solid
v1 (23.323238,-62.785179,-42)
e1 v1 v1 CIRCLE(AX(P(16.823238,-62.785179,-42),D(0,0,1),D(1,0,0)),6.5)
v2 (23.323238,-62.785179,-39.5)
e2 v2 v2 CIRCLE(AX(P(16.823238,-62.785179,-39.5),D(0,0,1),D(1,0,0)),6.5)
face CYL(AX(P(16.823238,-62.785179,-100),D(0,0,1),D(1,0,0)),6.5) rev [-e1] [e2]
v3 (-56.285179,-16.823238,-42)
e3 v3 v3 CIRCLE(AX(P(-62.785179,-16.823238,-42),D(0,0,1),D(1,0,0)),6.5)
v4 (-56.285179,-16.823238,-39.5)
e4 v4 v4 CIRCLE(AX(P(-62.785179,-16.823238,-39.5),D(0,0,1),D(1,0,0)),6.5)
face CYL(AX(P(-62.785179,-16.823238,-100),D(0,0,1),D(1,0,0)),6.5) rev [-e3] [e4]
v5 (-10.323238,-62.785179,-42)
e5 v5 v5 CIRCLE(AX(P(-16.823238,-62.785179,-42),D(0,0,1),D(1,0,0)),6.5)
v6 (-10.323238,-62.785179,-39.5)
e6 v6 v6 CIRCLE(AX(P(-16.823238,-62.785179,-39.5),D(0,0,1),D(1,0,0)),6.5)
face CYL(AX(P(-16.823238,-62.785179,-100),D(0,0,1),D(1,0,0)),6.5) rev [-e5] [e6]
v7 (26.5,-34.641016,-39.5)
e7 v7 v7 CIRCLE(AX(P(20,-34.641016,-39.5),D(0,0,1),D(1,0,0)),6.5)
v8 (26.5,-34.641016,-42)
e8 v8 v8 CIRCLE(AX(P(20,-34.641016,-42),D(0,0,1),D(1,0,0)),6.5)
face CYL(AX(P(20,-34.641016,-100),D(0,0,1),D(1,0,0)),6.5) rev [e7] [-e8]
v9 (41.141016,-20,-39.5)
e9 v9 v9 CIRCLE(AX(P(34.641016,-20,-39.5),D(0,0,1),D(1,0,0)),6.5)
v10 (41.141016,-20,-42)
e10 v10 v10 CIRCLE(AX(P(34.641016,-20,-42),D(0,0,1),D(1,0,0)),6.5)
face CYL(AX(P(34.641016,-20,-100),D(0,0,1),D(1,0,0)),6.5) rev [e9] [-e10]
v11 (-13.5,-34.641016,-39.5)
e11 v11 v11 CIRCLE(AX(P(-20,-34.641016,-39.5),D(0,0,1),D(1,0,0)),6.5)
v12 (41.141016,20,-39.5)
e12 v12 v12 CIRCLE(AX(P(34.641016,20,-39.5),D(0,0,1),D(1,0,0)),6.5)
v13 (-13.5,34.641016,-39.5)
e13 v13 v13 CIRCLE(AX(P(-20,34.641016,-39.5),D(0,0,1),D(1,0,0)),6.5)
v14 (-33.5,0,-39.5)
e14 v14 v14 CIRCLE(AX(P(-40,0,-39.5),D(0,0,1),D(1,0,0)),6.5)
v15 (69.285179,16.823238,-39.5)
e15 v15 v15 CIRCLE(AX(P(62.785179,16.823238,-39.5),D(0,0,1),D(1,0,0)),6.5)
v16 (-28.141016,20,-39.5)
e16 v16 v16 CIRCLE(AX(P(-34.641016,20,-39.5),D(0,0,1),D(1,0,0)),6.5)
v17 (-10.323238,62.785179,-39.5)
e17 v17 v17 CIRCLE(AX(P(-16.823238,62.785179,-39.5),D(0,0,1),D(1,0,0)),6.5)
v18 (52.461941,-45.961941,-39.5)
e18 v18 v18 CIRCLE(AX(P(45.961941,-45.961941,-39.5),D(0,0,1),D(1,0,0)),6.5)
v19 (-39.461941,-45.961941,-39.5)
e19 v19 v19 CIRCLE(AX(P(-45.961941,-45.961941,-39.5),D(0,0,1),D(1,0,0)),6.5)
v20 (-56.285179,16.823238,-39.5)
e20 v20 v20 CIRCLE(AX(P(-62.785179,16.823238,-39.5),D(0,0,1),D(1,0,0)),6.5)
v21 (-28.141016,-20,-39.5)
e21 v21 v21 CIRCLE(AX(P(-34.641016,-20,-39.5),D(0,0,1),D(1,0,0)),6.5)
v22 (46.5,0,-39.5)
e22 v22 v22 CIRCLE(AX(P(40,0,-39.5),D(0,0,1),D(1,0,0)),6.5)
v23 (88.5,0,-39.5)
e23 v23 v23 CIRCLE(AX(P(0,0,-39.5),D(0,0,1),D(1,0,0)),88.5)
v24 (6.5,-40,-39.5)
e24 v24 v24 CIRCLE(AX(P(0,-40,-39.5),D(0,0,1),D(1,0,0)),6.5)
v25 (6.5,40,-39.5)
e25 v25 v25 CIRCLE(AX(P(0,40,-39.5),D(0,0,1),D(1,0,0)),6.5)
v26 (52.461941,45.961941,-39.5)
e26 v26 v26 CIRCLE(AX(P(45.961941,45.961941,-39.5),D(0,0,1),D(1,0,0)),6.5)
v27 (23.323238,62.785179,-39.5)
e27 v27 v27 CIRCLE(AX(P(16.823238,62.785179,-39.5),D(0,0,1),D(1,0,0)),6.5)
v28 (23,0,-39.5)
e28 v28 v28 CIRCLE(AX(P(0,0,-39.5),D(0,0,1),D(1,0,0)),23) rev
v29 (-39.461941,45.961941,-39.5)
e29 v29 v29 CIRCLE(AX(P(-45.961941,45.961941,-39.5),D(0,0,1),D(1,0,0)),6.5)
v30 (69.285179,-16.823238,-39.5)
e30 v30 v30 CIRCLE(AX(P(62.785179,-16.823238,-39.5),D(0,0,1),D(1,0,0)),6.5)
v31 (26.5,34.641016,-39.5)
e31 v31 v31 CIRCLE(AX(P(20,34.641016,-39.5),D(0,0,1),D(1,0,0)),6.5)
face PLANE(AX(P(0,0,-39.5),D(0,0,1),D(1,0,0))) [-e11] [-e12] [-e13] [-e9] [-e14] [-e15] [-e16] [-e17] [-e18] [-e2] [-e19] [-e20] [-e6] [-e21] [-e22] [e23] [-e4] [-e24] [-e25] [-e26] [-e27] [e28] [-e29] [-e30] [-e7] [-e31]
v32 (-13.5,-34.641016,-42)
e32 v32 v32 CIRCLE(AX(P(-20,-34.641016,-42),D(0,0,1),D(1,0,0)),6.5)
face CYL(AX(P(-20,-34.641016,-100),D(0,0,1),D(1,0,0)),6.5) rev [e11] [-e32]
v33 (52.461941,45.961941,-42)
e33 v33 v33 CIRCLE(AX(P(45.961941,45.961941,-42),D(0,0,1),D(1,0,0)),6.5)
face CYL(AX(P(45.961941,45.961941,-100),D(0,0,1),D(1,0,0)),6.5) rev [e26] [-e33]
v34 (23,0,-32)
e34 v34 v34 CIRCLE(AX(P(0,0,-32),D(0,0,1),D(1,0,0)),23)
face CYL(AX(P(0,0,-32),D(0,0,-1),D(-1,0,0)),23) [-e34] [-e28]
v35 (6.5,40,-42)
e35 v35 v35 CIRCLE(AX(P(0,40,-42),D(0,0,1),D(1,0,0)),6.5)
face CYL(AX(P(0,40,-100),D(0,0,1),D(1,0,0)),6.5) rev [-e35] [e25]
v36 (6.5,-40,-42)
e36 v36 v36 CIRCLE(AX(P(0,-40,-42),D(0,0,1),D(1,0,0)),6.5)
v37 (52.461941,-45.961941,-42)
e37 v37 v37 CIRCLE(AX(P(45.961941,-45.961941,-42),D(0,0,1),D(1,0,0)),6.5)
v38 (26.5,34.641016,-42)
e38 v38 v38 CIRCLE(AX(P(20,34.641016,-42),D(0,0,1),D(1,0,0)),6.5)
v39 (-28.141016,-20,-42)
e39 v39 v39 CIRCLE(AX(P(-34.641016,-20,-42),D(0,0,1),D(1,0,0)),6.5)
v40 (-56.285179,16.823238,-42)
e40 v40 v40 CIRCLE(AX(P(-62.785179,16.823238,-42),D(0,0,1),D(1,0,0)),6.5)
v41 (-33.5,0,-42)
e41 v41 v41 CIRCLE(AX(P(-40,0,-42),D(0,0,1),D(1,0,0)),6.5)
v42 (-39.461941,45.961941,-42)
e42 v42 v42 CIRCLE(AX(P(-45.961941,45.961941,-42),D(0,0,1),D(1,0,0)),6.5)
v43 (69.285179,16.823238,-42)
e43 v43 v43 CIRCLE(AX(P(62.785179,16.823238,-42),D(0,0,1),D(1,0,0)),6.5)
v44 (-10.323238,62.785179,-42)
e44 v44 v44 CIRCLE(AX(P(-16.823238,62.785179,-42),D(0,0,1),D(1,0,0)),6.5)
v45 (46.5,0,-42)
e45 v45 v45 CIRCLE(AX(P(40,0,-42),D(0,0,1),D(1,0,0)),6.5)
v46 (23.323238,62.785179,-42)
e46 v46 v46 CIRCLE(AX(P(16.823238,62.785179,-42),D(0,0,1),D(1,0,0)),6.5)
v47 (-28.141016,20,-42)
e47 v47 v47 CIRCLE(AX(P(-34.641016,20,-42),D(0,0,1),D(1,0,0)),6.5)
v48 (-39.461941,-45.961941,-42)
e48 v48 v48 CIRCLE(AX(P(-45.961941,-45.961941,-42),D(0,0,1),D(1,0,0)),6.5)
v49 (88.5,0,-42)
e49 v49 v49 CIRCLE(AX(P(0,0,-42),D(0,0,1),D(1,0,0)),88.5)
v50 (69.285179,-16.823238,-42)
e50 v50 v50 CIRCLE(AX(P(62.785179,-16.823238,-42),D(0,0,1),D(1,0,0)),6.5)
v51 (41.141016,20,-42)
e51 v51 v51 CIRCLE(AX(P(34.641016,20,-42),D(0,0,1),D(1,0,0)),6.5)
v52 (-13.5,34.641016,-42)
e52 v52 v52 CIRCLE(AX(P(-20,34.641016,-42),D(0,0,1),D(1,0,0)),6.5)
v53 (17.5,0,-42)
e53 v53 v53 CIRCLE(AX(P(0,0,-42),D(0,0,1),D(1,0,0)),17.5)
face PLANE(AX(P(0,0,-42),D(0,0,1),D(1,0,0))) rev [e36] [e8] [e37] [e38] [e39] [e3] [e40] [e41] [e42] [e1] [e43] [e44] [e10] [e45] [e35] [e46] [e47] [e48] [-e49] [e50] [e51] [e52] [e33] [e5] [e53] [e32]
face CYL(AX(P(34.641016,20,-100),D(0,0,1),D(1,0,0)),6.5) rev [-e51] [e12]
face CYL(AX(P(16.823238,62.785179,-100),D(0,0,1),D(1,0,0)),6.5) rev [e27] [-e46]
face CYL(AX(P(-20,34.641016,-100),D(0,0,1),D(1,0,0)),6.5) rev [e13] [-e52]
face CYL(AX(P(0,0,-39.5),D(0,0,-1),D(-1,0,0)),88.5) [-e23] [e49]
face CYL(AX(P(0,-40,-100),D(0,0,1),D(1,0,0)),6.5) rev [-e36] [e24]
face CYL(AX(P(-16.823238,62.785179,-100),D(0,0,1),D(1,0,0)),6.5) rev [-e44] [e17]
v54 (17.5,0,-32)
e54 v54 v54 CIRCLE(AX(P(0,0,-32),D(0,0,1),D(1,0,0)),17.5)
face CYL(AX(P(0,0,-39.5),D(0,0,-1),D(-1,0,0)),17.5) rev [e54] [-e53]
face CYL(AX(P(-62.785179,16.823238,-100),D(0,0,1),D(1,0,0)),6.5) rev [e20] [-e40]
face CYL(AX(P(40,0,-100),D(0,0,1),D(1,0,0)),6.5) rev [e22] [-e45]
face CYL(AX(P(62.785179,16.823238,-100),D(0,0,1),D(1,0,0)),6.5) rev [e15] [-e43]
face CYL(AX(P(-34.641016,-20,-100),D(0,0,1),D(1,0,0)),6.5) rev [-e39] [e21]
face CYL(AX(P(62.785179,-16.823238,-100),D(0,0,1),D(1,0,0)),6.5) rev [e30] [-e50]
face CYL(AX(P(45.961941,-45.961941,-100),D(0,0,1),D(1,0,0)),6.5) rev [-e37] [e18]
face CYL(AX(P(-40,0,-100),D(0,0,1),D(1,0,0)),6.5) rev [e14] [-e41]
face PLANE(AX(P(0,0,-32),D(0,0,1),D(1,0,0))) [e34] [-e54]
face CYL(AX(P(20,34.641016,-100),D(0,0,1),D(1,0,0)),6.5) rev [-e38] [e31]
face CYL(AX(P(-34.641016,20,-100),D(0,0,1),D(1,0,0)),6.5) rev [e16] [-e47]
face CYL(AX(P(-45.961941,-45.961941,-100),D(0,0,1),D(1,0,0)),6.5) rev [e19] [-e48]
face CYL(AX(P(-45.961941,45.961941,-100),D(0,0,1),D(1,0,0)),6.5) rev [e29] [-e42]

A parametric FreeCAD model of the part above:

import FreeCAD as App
import Part
import Sketcher
Q = App.Units.Quantity

doc = App.newDocument("Part")
body = doc.addObject("PartDesign::Body", "Body")

# Sketch on XY plane
sketch1 = doc.addObject("Sketcher::SketchObject", "Sketch")
body.addObject(sketch1)
sketch1.AttachmentSupport = (doc.XY_Plane, [""])
sketch1.MapMode = "FlatFace"
sketch1.AttachmentOffset = App.Placement(App.Vector(0, 0, -42), App.Rotation())
sketch1.addGeometry([
    Part.Circle(App.Vector(0, 0, 0), App.Vector(0, 0, 1), 88),
    Part.Circle(App.Vector(0, 0, 0), App.Vector(0, 0, 1), 18),
], False)
sketch1.addConstraint([
    Sketcher.Constraint("Coincident", 0, 3, -1, 1),
    Sketcher.Constraint("Coincident", 1, 3, -1, 1),
    Sketcher.Constraint("Diameter", 0, Q("177 mm")),
    Sketcher.Constraint("Diameter", 1, Q("35 mm")),
])
pad1 = doc.addObject("PartDesign::Pad", "Pad")
body.addObject(pad1)
pad1.Profile = sketch1
pad1.Length = 2.5

# Sketch on XY plane
sketch2 = doc.addObject("Sketcher::SketchObject", "Sketch001")
body.addObject(sketch2)
sketch2.AttachmentSupport = (doc.XY_Plane, [""])
sketch2.MapMode = "FlatFace"
sketch2.AttachmentOffset = App.Placement(App.Vector(0, 0, -42), App.Rotation())
sketch2.addGeometry([
    Part.Circle(App.Vector(0, 0, 0), App.Vector(0, 0, 1), 23),
    Part.Circle(App.Vector(0, 0, 0), App.Vector(0, 0, 1), 18),
], False)
sketch2.addConstraint([
    Sketcher.Constraint("Coincident", 0, 3, -1, 1),
    Sketcher.Constraint("Coincident", 1, 3, -1, 1),
    Sketcher.Constraint("Diameter", 0, Q("46 mm")),
    Sketcher.Constraint("Diameter", 1, Q("35 mm")),
])
pad2 = doc.addObject("PartDesign::Pad", "Pad001")
body.addObject(pad2)
pad2.Profile = sketch2
pad2.Length = 10

# Sketch on XY plane
sketch3 = doc.addObject("Sketcher::SketchObject", "Sketch002")
body.addObject(sketch3)
sketch3.AttachmentSupport = (doc.XY_Plane, [""])
sketch3.MapMode = "FlatFace"
sketch3.addGeometry([
    Part.Circle(App.Vector(40, 0, 0), App.Vector(0, 0, 1), 6),  # 0
    Part.Circle(App.Vector(35, 20, 0), App.Vector(0, 0, 1), 6),  # 1
    Part.Circle(App.Vector(20, 35, 0), App.Vector(0, 0, 1), 6),  # 2
    Part.Circle(App.Vector(0, 40, 0), App.Vector(0, 0, 1), 6),  # 3
    Part.Circle(App.Vector(-20, 35, 0), App.Vector(0, 0, 1), 6),  # 4
    Part.Circle(App.Vector(-35, 20, 0), App.Vector(0, 0, 1), 6),  # 5
    Part.Circle(App.Vector(-40, 0, 0), App.Vector(0, 0, 1), 6),  # 6
    Part.Circle(App.Vector(-35, -20, 0), App.Vector(0, 0, 1), 6),  # 7
    Part.Circle(App.Vector(-20, -35, 0), App.Vector(0, 0, 1), 6),  # 8
    Part.Circle(App.Vector(0, -40, 0), App.Vector(0, 0, 1), 6),  # 9
    Part.Circle(App.Vector(20, -35, 0), App.Vector(0, 0, 1), 6),  # 10
    Part.Circle(App.Vector(35, -20, 0), App.Vector(0, 0, 1), 6),  # 11
    Part.Circle(App.Vector(63, 17, 0), App.Vector(0, 0, 1), 6),  # 12
    Part.Circle(App.Vector(46, 46, 0), App.Vector(0, 0, 1), 6),  # 13
    Part.Circle(App.Vector(17, 63, 0), App.Vector(0, 0, 1), 6),  # 14
    Part.Circle(App.Vector(-17, 63, 0), App.Vector(0, 0, 1), 6),  # 15
    Part.Circle(App.Vector(-46, 46, 0), App.Vector(0, 0, 1), 6),  # 16
    Part.Circle(App.Vector(-63, 17, 0), App.Vector(0, 0, 1), 6),  # 17
    Part.Circle(App.Vector(-63, -17, 0), App.Vector(0, 0, 1), 6),  # 18
    Part.Circle(App.Vector(-46, -46, 0), App.Vector(0, 0, 1), 6),  # 19
    Part.Circle(App.Vector(-17, -63, 0), App.Vector(0, 0, 1), 6),  # 20
    Part.Circle(App.Vector(17, -63, 0), App.Vector(0, 0, 1), 6),  # 21
    Part.Circle(App.Vector(46, -46, 0), App.Vector(0, 0, 1), 6),  # 22
    Part.Circle(App.Vector(63, -17, 0), App.Vector(0, 0, 1), 6),  # 23
], False)
sketch3.addConstraint([
    Sketcher.Constraint("Equal", 0, 1),
    Sketcher.Constraint("Equal", 1, 2),
    Sketcher.Constraint("Equal", 2, 3),
    Sketcher.Constraint("Equal", 3, 4),
    Sketcher.Constraint("Equal", 4, 5),
    Sketcher.Constraint("Equal", 5, 6),
    Sketcher.Constraint("Equal", 6, 7),
    Sketcher.Constraint("Equal", 7, 8),
    Sketcher.Constraint("Equal", 8, 9),
    Sketcher.Constraint("Equal", 9, 10),
    Sketcher.Constraint("Equal", 10, 11),
    Sketcher.Constraint("Equal", 11, 12),
    Sketcher.Constraint("Equal", 12, 13),
    Sketcher.Constraint("Equal", 13, 14),
    Sketcher.Constraint("Equal", 14, 15),
    Sketcher.Constraint("Equal", 15, 16),
    Sketcher.Constraint("Equal", 16, 17),
    Sketcher.Constraint("Equal", 17, 18),
    Sketcher.Constraint("Equal", 18, 19),
    Sketcher.Constraint("Equal", 19, 20),
    Sketcher.Constraint("Equal", 20, 21),
    Sketcher.Constraint("Equal", 21, 22),
    Sketcher.Constraint("Equal", 22, 23),
    Sketcher.Constraint("Symmetric", 0, 3, 6, 3, -1, 1),
    Sketcher.Constraint("Symmetric", 1, 3, 7, 3, -1, 1),
    Sketcher.Constraint("Symmetric", 2, 3, 8, 3, -1, 1),
    Sketcher.Constraint("Symmetric", 3, 3, 9, 3, -1, 1),
    Sketcher.Constraint("Symmetric", 4, 3, 10, 3, -1, 1),
    Sketcher.Constraint("Symmetric", 5, 3, 11, 3, -1, 1),
    Sketcher.Constraint("Symmetric", 12, 3, 18, 3, -1, 1),
    Sketcher.Constraint("Symmetric", 13, 3, 19, 3, -1, 1),
    Sketcher.Constraint("Symmetric", 14, 3, 20, 3, -1, 1),
    Sketcher.Constraint("Symmetric", 15, 3, 21, 3, -1, 1),
    Sketcher.Constraint("Symmetric", 16, 3, 22, 3, -1, 1),
    Sketcher.Constraint("Symmetric", 17, 3, 23, 3, -1, 1),
    Sketcher.Constraint("Symmetric", 2, 3, 4, 3, -2),
    Sketcher.Constraint("Symmetric", 1, 3, 5, 3, -2),
    Sketcher.Constraint("Symmetric", 14, 3, 15, 3, -2),
    Sketcher.Constraint("Symmetric", 13, 3, 16, 3, -2),
    Sketcher.Constraint("Symmetric", 12, 3, 17, 3, -2),
    Sketcher.Constraint("PointOnObject", 0, 3, -1),
    Sketcher.Constraint("PointOnObject", 3, 3, -2),
    Sketcher.Constraint("Diameter", 0, Q("13 mm")),
    Sketcher.Constraint("DistanceX", -1, 1, 0, 3, Q("40 mm")),
    Sketcher.Constraint("DistanceY", -1, 1, 1, 3, Q("20 mm")),
    Sketcher.Constraint("DistanceX", -1, 1, 2, 3, Q("20 mm")),
    Sketcher.Constraint("DistanceY", -1, 1, 3, 3, Q("40 mm")),
    Sketcher.Constraint("DistanceX", -1, 1, 12, 3, Q("62.785179 mm")),
    Sketcher.Constraint("DistanceX", -1, 1, 13, 3, Q("45.961941 mm")),
    Sketcher.Constraint("DistanceY", -1, 1, 13, 3, Q("45.961941 mm")),
    Sketcher.Constraint("DistanceY", -1, 1, 14, 3, Q("62.785179 mm")),
    Sketcher.Constraint("DistanceY", 12, 3, 2, 3, Q("17.817778 mm")),
    Sketcher.Constraint("DistanceX", 14, 3, 1, 3, Q("17.817778 mm")),
    Sketcher.Constraint("DistanceX", -1, 1, 1, 3, Q("34.641016 mm")),
    Sketcher.Constraint("DistanceY", -1, 1, 2, 3, Q("34.641016 mm")),
])
pocket1 = doc.addObject("PartDesign::Pocket", "Pocket")
body.addObject(pocket1)
pocket1.Profile = sketch3
pocket1.Length = 200
pocket1.Midplane = True

doc.recompute()
